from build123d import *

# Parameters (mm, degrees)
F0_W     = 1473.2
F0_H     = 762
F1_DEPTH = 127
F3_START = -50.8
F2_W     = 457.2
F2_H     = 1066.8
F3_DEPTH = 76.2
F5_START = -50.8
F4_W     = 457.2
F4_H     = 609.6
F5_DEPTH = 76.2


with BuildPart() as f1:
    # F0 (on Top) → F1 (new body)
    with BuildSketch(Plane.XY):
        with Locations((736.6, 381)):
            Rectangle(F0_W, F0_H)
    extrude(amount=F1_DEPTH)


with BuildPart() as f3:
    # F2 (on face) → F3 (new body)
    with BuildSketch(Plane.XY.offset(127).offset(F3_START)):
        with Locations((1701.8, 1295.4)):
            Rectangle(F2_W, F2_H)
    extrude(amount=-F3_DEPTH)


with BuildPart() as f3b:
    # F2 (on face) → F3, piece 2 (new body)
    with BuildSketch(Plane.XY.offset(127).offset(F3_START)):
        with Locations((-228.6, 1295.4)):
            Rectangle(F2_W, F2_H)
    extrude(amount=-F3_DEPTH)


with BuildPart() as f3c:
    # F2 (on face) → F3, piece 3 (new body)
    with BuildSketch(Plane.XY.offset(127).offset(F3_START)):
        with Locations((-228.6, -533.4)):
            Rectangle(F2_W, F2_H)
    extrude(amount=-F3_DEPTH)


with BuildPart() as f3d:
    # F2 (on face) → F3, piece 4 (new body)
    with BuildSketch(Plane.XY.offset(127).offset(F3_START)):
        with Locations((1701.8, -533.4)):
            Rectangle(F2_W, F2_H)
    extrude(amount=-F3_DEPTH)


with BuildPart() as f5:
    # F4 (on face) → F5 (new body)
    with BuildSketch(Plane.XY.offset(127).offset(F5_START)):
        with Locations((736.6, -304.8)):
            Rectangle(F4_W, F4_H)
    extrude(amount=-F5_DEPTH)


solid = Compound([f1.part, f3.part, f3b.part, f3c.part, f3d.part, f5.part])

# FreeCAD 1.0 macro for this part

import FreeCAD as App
import Part
import Sketcher

V = App.Vector
Q = App.Units.Quantity

doc = App.newDocument("Part")
body = doc.addObject("PartDesign::Body", "Body")

# Sketch on XY plane
sketch1 = doc.addObject("Sketcher::SketchObject", "Sketch")
body.addObject(sketch1)
sketch1.AttachmentSupport = (doc.XY_Plane, [""])
sketch1.MapMode = "FlatFace"
sketch1.addGeometry([
    Part.LineSegment(V(0, 762, 0), V(0, 0, 0)),
    Part.LineSegment(V(0, 0, 0), V(1473.2, 0, 0)),
    Part.LineSegment(V(1473.2, 0, 0), V(1473.2, 762, 0)),
    Part.LineSegment(V(1473.2, 762, 0), V(0, 762, 0)),
], False)
sketch1.addConstraint([
    Sketcher.Constraint("Coincident", 0, 2, 1, 1),
    Sketcher.Constraint("Coincident", 1, 2, 2, 1),
    Sketcher.Constraint("Coincident", 2, 2, 3, 1),
    Sketcher.Constraint("Coincident", 3, 2, 0, 1),
    Sketcher.Constraint("Vertical", 0),
    Sketcher.Constraint("Horizontal", 1),
    Sketcher.Constraint("Vertical", 2),
    Sketcher.Constraint("Horizontal", 3),
    Sketcher.Constraint("Coincident", 0, 2, -1, 1),
    Sketcher.Constraint("DistanceX", 1, 1, 1, 2, Q("58 in")),
    Sketcher.Constraint("DistanceY", 0, 2, 0, 1, Q("30 in")),
])
pad1 = doc.addObject("PartDesign::Pad", "Pad")
body.addObject(pad1)
pad1.Profile = sketch1
pad1.Length = Q("5 in")
body2 = doc.addObject("PartDesign::Body", "Body001")

# Sketch on XY plane
sketch2 = doc.addObject("Sketcher::SketchObject", "Sketch001")
body2.addObject(sketch2)
sketch2.AttachmentSupport = (doc.getObject("XY_Plane001"), [""])
sketch2.MapMode = "FlatFace"
sketch2.AttachmentOffset = App.Placement(V(0, 0, 3 * 25.4), App.Rotation())
sketch2.addGeometry([
    Part.LineSegment(V(1473.2, 1828.8, 0), V(1473.2, 762, 0)),
    Part.LineSegment(V(1473.2, 762, 0), V(1930.4, 762, 0)),
    Part.LineSegment(V(1930.4, 762, 0), V(1930.4, 1828.8, 0)),
    Part.LineSegment(V(1930.4, 1828.8, 0), V(1473.2, 1828.8, 0)),
], False)
sketch2.addConstraint([
    Sketcher.Constraint("Coincident", 0, 2, 1, 1),
    Sketcher.Constraint("Coincident", 1, 2, 2, 1),
    Sketcher.Constraint("Coincident", 2, 2, 3, 1),
    Sketcher.Constraint("Coincident", 3, 2, 0, 1),
    Sketcher.Constraint("Vertical", 0),
    Sketcher.Constraint("Horizontal", 1),
    Sketcher.Constraint("Vertical", 2),
    Sketcher.Constraint("Horizontal", 3),
    Sketcher.Constraint("DistanceX", 1, 1, 1, 2, Q("18 in")),
    Sketcher.Constraint("DistanceY", 0, 2, 0, 1, Q("42 in")),
    Sketcher.Constraint("DistanceX", -1, 1, 0, 2, Q("58 in")),
    Sketcher.Constraint("DistanceY", -1, 1, 0, 2, Q("30 in")),
])
pad2 = doc.addObject("PartDesign::Pad", "Pad001")
body2.addObject(pad2)
pad2.Profile = sketch2
pad2.Length = Q("3 in")
pad2.Reversed = True
body3 = doc.addObject("PartDesign::Body", "Body002")

# Sketch on XY plane
sketch3 = doc.addObject("Sketcher::SketchObject", "Sketch002")
body3.addObject(sketch3)
sketch3.AttachmentSupport = (doc.getObject("XY_Plane002"), [""])
sketch3.MapMode = "FlatFace"
sketch3.AttachmentOffset = App.Placement(V(0, 0, 3 * 25.4), App.Rotation())
sketch3.addGeometry([
    Part.LineSegment(V(-457.2, 1828.8, 0), V(-457.2, 762, 0)),
    Part.LineSegment(V(-457.2, 762, 0), V(0, 762, 0)),
    Part.LineSegment(V(0, 762, 0), V(0, 1828.8, 0)),
    Part.LineSegment(V(0, 1828.8, 0), V(-457.2, 1828.8, 0)),
], False)
sketch3.addConstraint([
    Sketcher.Constraint("Coincident", 0, 2, 1, 1),
    Sketcher.Constraint("Coincident", 1, 2, 2, 1),
    Sketcher.Constraint("Coincident", 2, 2, 3, 1),
    Sketcher.Constraint("Coincident", 3, 2, 0, 1),
    Sketcher.Constraint("Vertical", 0),
    Sketcher.Constraint("Horizontal", 1),
    Sketcher.Constraint("Vertical", 2),
    Sketcher.Constraint("Horizontal", 3),
    Sketcher.Constraint("PointOnObject", 1, 2, -2),
    Sketcher.Constraint("DistanceX", 1, 1, 1, 2, Q("18 in")),
    Sketcher.Constraint("DistanceY", 0, 2, 0, 1, Q("42 in")),
    Sketcher.Constraint("DistanceY", -1, 1, 0, 2, Q("30 in")),
])
pad3 = doc.addObject("PartDesign::Pad", "Pad002")
body3.addObject(pad3)
pad3.Profile = sketch3
pad3.Length = Q("3 in")
pad3.Reversed = True
body4 = doc.addObject("PartDesign::Body", "Body003")

# Sketch on XY plane
sketch4 = doc.addObject("Sketcher::SketchObject", "Sketch003")
body4.addObject(sketch4)
sketch4.AttachmentSupport = (doc.getObject("XY_Plane003"), [""])
sketch4.MapMode = "FlatFace"
sketch4.AttachmentOffset = App.Placement(V(0, 0, 3 * 25.4), App.Rotation())
sketch4.addGeometry([
    Part.LineSegment(V(-457.2, 0, 0), V(-457.2, -1066.8, 0)),
    Part.LineSegment(V(-457.2, -1066.8, 0), V(0, -1066.8, 0)),
    Part.LineSegment(V(0, -1066.8, 0), V(0, 0, 0)),
    Part.LineSegment(V(0, 0, 0), V(-457.2, 0, 0)),
], False)
sketch4.addConstraint([
    Sketcher.Constraint("Coincident", 0, 2, 1, 1),
    Sketcher.Constraint("Coincident", 1, 2, 2, 1),
    Sketcher.Constraint("Coincident", 2, 2, 3, 1),
    Sketcher.Constraint("Coincident", 3, 2, 0, 1),
    Sketcher.Constraint("Vertical", 0),
    Sketcher.Constraint("Horizontal", 1),
    Sketcher.Constraint("Vertical", 2),
    Sketcher.Constraint("Horizontal", 3),
    Sketcher.Constraint("Coincident", 2, 2, -1, 1),
    Sketcher.Constraint("DistanceX", 1, 1, 1, 2, Q("18 in")),
    Sketcher.Constraint("DistanceY", 0, 2, 0, 1, Q("42 in")),
])
pad4 = doc.addObject("PartDesign::Pad", "Pad003")
body4.addObject(pad4)
pad4.Profile = sketch4
pad4.Length = Q("3 in")
pad4.Reversed = True
body5 = doc.addObject("PartDesign::Body", "Body004")

# Sketch on XY plane
sketch5 = doc.addObject("Sketcher::SketchObject", "Sketch004")
body5.addObject(sketch5)
sketch5.AttachmentSupport = (doc.getObject("XY_Plane004"), [""])
sketch5.MapMode = "FlatFace"
sketch5.AttachmentOffset = App.Placement(V(0, 0, 3 * 25.4), App.Rotation())
sketch5.addGeometry([
    Part.LineSegment(V(1473.2, 0, 0), V(1473.2, -1066.8, 0)),
    Part.LineSegment(V(1473.2, -1066.8, 0), V(1930.4, -1066.8, 0)),
    Part.LineSegment(V(1930.4, -1066.8, 0), V(1930.4, 0, 0)),
    Part.LineSegment(V(1930.4, 0, 0), V(1473.2, 0, 0)),
], False)
sketch5.addConstraint([
    Sketcher.Constraint("Coincident", 0, 2, 1, 1),
    Sketcher.Constraint("Coincident", 1, 2, 2, 1),
    Sketcher.Constraint("Coincident", 2, 2, 3, 1),
    Sketcher.Constraint("Coincident", 3, 2, 0, 1),
    Sketcher.Constraint("Vertical", 0),
    Sketcher.Constraint("Horizontal", 1),
    Sketcher.Constraint("Vertical", 2),
    Sketcher.Constraint("Horizontal", 3),
    Sketcher.Constraint("PointOnObject", 2, 2, -1),
    Sketcher.Constraint("DistanceX", 1, 1, 1, 2, Q("18 in")),
    Sketcher.Constraint("DistanceY", 0, 2, 0, 1, Q("42 in")),
    Sketcher.Constraint("DistanceX", -1, 1, 0, 2, Q("58 in")),
])
pad5 = doc.addObject("PartDesign::Pad", "Pad004")
body5.addObject(pad5)
pad5.Profile = sketch5
pad5.Length = Q("3 in")
pad5.Reversed = True
body6 = doc.addObject("PartDesign::Body", "Body005")

# Sketch on XY plane
sketch6 = doc.addObject("Sketcher::SketchObject", "Sketch005")
body6.addObject(sketch6)
sketch6.AttachmentSupport = (doc.getObject("XY_Plane005"), [""])
sketch6.MapMode = "FlatFace"
sketch6.AttachmentOffset = App.Placement(V(0, 0, 3 * 25.4), App.Rotation())
sketch6.addGeometry([
    Part.LineSegment(V(508, 0, 0), V(508, -609.6, 0)),
    Part.LineSegment(V(508, -609.6, 0), V(965.2, -609.6, 0)),
    Part.LineSegment(V(965.2, -609.6, 0), V(965.2, 0, 0)),
    Part.LineSegment(V(965.2, 0, 0), V(508, 0, 0)),
], False)
sketch6.addConstraint([
    Sketcher.Constraint("Coincident", 0, 2, 1, 1),
    Sketcher.Constraint("Coincident", 1, 2, 2, 1),
    Sketcher.Constraint("Coincident", 2, 2, 3, 1),
    Sketcher.Constraint("Coincident", 3, 2, 0, 1),
    Sketcher.Constraint("Vertical", 0),
    Sketcher.Constraint("Horizontal", 1),
    Sketcher.Constraint("Vertical", 2),
    Sketcher.Constraint("Horizontal", 3),
    Sketcher.Constraint("PointOnObject", 2, 2, -1),
    Sketcher.Constraint("DistanceX", 1, 1, 1, 2, Q("18 in")),
    Sketcher.Constraint("DistanceY", 0, 2, 0, 1, Q("24 in")),
    Sketcher.Constraint("DistanceX", -1, 1, 0, 2, Q("20 in")),
])
pad6 = doc.addObject("PartDesign::Pad", "Pad005")
body6.addObject(pad6)
pad6.Profile = sketch6
pad6.Length = Q("3 in")
pad6.Reversed = True

doc.recompute()
